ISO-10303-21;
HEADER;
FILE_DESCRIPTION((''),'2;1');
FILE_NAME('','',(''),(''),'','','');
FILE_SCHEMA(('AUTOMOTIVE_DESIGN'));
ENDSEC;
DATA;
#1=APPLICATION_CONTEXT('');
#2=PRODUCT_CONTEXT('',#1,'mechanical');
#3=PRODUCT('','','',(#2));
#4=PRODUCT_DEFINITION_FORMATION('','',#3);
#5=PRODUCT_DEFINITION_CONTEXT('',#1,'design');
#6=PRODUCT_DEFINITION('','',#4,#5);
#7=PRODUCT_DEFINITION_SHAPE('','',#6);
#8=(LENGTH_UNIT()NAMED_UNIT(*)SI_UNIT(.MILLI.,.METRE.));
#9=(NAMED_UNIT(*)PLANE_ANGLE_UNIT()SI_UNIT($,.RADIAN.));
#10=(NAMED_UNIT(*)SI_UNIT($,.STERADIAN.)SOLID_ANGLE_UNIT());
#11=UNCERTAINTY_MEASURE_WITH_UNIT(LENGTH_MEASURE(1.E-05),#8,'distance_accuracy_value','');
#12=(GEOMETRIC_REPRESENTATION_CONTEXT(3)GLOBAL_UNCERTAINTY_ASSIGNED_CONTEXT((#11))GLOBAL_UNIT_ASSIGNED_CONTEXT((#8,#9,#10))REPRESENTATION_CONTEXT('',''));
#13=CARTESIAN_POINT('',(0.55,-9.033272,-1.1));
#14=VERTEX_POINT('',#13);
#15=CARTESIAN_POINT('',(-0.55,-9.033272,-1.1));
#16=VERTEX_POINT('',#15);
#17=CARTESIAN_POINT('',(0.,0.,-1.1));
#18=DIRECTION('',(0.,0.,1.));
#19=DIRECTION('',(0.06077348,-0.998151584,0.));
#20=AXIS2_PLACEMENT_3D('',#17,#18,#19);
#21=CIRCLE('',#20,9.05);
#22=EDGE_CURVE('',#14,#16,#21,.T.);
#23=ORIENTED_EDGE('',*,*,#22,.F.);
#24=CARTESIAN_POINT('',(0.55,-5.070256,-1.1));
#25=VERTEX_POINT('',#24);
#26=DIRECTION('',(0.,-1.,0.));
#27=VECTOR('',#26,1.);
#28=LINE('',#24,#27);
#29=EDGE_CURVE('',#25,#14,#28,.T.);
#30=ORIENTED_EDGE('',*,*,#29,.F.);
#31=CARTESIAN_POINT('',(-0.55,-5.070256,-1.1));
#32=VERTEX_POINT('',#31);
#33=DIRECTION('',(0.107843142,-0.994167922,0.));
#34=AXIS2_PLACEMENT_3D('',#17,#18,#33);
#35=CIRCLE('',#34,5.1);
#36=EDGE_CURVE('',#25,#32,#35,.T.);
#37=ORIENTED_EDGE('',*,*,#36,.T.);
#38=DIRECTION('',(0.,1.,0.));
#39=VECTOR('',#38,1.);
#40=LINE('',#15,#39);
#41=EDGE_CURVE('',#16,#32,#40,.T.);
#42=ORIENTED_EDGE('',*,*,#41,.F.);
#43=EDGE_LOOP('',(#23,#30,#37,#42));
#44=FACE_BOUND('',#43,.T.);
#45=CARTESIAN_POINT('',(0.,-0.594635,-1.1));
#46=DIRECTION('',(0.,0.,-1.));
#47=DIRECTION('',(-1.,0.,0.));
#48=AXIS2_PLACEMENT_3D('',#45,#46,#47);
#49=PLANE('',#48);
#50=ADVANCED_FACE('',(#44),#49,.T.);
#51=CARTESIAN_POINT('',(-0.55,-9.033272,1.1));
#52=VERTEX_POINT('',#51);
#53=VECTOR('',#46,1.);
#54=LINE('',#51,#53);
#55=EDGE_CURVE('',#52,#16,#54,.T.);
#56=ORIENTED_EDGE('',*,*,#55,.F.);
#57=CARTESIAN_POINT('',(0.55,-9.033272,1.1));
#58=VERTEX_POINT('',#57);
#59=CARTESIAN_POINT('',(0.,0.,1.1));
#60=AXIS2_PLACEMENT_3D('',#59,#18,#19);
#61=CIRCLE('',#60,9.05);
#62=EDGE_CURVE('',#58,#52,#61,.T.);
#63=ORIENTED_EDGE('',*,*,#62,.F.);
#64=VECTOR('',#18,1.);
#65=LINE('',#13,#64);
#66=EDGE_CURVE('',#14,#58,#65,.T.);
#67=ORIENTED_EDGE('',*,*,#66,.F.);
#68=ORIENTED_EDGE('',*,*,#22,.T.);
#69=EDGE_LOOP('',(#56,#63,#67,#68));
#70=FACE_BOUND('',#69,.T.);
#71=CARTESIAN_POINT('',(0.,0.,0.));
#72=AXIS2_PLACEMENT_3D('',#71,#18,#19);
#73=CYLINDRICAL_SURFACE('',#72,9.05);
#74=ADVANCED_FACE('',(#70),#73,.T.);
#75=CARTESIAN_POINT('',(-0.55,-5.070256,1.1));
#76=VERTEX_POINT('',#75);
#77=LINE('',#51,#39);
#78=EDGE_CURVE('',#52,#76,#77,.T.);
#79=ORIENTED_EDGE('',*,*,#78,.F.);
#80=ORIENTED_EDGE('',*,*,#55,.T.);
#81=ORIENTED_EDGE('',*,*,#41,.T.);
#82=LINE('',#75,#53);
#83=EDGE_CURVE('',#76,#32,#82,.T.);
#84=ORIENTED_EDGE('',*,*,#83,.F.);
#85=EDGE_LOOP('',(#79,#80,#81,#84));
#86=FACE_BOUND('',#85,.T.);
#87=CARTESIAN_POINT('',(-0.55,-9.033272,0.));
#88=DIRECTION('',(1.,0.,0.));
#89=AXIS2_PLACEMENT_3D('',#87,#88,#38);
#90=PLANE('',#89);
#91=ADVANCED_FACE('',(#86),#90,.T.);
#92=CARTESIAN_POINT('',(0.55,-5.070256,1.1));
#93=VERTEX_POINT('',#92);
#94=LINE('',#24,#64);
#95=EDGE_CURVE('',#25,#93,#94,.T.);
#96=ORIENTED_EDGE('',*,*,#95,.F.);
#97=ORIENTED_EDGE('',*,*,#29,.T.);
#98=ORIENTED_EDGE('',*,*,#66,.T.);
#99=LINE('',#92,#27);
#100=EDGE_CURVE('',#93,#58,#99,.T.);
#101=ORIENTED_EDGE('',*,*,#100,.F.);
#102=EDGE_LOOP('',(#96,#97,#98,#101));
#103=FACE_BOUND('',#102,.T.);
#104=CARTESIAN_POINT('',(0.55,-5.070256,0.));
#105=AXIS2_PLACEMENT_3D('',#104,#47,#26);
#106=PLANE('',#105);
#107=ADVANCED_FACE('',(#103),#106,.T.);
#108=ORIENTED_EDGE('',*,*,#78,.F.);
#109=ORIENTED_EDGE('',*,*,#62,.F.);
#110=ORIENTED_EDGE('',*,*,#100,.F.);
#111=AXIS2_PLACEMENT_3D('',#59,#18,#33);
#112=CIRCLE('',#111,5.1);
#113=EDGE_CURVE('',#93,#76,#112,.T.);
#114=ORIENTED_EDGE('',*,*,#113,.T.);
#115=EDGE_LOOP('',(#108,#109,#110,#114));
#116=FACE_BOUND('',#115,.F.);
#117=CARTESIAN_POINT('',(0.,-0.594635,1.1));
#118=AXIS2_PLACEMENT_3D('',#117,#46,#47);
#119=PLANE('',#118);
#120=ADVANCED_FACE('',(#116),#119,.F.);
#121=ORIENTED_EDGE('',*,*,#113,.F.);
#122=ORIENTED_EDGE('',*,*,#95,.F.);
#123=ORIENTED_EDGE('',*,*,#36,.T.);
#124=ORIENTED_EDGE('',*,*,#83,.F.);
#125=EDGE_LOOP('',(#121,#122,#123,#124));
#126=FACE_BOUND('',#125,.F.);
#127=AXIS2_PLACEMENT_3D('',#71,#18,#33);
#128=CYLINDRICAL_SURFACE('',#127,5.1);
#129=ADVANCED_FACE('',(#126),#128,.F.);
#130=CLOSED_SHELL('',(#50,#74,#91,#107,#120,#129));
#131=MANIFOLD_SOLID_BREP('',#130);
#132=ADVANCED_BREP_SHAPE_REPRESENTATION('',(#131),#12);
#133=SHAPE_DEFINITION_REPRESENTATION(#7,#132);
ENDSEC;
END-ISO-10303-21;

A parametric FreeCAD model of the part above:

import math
import FreeCAD as App
import Part
import Sketcher
from FreeCAD import Vector
Q = App.Units.Quantity

doc = App.newDocument("Part")
body = doc.addObject("PartDesign::Body", "Body")

sketch1 = body.newObject("Sketcher::SketchObject", "Sketch")
sketch1.AttachmentSupport = (doc.getObject("XY_Plane"), [""])
sketch1.MapMode = "FlatFace"
sketch1.addGeometry([
    Part.ArcOfCircle(Part.Circle(Vector(0, 0, 0), Vector(0, 0, 1), 5.1), math.radians(-83.809003), math.radians(263.809003)),
    Part.LineSegment(Vector(0.55, -5.070256, 0), Vector(0.55, -9.033272, 0)),
    Part.ArcOfCircle(Part.Circle(Vector(0, 0, 0), Vector(0, 0, 1), 9.05), math.radians(-86.515789), math.radians(266.515789)),
    Part.LineSegment(Vector(-0.55, -9.033272, 0), Vector(-0.55, -5.070256, 0)),
], False)
sketch1.addConstraint([
    Sketcher.Constraint("Coincident", 0, 1, 1, 1),
    Sketcher.Constraint("Coincident", 1, 2, 2, 1),
    Sketcher.Constraint("Coincident", 2, 2, 3, 1),
    Sketcher.Constraint("Coincident", 3, 2, 0, 2),
    Sketcher.Constraint("Vertical", 1),
    Sketcher.Constraint("Vertical", 3),
    Sketcher.Constraint("Coincident", 0, 3, -1, 1),
    Sketcher.Constraint("Coincident", 2, 3, -1, 1),
    Sketcher.Constraint("Horizontal", 1, 2, 2, 2),
    Sketcher.Constraint("Radius", 0, Q("5.1 mm")),
    Sketcher.Constraint("Radius", 2, Q("9.05 mm")),
    Sketcher.Constraint("DistanceX", 2, 2, 1, 2, Q("1.1 mm")),
])
pad1 = body.newObject("PartDesign::Pad", "Pad")
pad1.Profile = sketch1
pad1.Length = 2.2
pad1.Midplane = True

doc.recompute()
